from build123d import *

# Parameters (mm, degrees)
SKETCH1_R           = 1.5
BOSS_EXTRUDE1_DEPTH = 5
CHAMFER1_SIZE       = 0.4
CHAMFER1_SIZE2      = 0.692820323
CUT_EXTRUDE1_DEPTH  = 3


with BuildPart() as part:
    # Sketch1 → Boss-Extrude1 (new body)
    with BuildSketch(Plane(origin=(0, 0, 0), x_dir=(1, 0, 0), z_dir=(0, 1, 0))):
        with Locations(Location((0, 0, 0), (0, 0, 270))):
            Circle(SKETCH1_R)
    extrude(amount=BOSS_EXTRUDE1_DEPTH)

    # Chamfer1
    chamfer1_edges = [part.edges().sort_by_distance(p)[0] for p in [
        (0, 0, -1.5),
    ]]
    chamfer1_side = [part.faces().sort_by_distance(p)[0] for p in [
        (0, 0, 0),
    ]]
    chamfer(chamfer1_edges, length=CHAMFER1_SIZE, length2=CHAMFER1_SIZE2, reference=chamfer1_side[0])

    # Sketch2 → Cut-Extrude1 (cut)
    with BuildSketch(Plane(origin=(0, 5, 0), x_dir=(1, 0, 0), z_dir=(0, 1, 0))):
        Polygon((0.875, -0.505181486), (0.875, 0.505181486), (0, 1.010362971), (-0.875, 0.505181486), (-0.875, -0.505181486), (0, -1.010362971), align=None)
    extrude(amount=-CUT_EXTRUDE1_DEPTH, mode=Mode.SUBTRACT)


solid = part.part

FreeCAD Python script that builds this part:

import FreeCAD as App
import Part
import Sketcher

V = App.Vector
Q = App.Units.Quantity


def edges_at(feature, points):
    """Names of the edges that pass closest to the given points."""
    edges = feature.Shape.Edges
    near = lambda p: min(range(len(edges)), key=lambda i: edges[i].distToShape(Part.Vertex(*p))[0])
    return sorted({f"Edge{near(p) + 1}" for p in points})

doc = App.newDocument("Part")
body = doc.addObject("PartDesign::Body", "Body")

# Sketch on XZ plane
sketch1 = doc.addObject("Sketcher::SketchObject", "Sketch")
body.addObject(sketch1)
sketch1.AttachmentSupport = (doc.XZ_Plane, [""])
sketch1.MapMode = "FlatFace"
sketch1.addGeometry(Part.Circle(V(0, 0, 0), V(0, 0, 1), 1.5), False)
sketch1.addConstraint([
    Sketcher.Constraint("Coincident", 0, 3, -1, 1),
    Sketcher.Constraint("Diameter", 0, 3.0),
])
pad1 = doc.addObject("PartDesign::Pad", "Pad")
body.addObject(pad1)
pad1.Profile = sketch1
pad1.Length = 5
pad1.Reversed = True
doc.recompute()

chamfer = doc.addObject("PartDesign::Chamfer", "Chamfer")
body.addObject(chamfer)
chamfer.Base = (pad1, edges_at(pad1, [(0, 0, -1.5)]))
chamfer.ChamferType = "Two distances"
chamfer.Size = 0.4
chamfer.Size2 = 0.69282
chamfer.FlipDirection = True

# Sketch on XZ plane
sketch2 = doc.addObject("Sketcher::SketchObject", "Sketch001")
body.addObject(sketch2)
sketch2.AttachmentSupport = (doc.XZ_Plane, [""])
sketch2.MapMode = "FlatFace"
sketch2.AttachmentOffset = App.Placement(V(0, 0, -5), App.Rotation())
sketch2.addGeometry([
    Part.LineSegment(V(0.9, 0.5, 0), V(0.9, -0.5, 0)),  # 0
    Part.LineSegment(V(0.9, -0.5, 0), V(0, -1, 0)),  # 1
    Part.LineSegment(V(0, -1, 0), V(-0.9, -0.5, 0)),  # 2
    Part.LineSegment(V(-0.9, -0.5, 0), V(-0.9, 0.5, 0)),  # 3
    Part.LineSegment(V(-0.9, 0.5, 0), V(0, 1, 0)),  # 4
    Part.LineSegment(V(0, 1, 0), V(0.9, 0.5, 0)),  # 5
], False)
sketch2.addConstraint([
    Sketcher.Constraint("Coincident", 0, 2, 1, 1),
    Sketcher.Constraint("Coincident", 1, 2, 2, 1),
    Sketcher.Constraint("Coincident", 2, 2, 3, 1),
    Sketcher.Constraint("Coincident", 3, 2, 4, 1),
    Sketcher.Constraint("Coincident", 4, 2, 5, 1),
    Sketcher.Constraint("Coincident", 5, 2, 0, 1),
    Sketcher.Constraint("Vertical", 0),
    Sketcher.Constraint("Vertical", 3),
    Sketcher.Constraint("Symmetric", 0, 2, 3, 2, -1, 1),
    Sketcher.Constraint("Symmetric", 1, 2, 4, 2, -1, 1),
    Sketcher.Constraint("PointOnObject", 1, 2, -2),
    Sketcher.Constraint("Parallel", 2, 5),
    Sketcher.Constraint("Horizontal", 0, 2, 2, 2),
    Sketcher.Constraint("Angle", 1, Q("-150 deg")),
    Sketcher.Constraint("DistanceX", 2, 2, 0, 2, 1.75),
    Sketcher.Constraint("DistanceY", 0, 2, 0, 1, 1.010363),
])
pocket1 = doc.addObject("PartDesign::Pocket", "Pocket")
body.addObject(pocket1)
pocket1.Profile = sketch2
pocket1.Length = 3
pocket1.Reversed = True

doc.recompute()
